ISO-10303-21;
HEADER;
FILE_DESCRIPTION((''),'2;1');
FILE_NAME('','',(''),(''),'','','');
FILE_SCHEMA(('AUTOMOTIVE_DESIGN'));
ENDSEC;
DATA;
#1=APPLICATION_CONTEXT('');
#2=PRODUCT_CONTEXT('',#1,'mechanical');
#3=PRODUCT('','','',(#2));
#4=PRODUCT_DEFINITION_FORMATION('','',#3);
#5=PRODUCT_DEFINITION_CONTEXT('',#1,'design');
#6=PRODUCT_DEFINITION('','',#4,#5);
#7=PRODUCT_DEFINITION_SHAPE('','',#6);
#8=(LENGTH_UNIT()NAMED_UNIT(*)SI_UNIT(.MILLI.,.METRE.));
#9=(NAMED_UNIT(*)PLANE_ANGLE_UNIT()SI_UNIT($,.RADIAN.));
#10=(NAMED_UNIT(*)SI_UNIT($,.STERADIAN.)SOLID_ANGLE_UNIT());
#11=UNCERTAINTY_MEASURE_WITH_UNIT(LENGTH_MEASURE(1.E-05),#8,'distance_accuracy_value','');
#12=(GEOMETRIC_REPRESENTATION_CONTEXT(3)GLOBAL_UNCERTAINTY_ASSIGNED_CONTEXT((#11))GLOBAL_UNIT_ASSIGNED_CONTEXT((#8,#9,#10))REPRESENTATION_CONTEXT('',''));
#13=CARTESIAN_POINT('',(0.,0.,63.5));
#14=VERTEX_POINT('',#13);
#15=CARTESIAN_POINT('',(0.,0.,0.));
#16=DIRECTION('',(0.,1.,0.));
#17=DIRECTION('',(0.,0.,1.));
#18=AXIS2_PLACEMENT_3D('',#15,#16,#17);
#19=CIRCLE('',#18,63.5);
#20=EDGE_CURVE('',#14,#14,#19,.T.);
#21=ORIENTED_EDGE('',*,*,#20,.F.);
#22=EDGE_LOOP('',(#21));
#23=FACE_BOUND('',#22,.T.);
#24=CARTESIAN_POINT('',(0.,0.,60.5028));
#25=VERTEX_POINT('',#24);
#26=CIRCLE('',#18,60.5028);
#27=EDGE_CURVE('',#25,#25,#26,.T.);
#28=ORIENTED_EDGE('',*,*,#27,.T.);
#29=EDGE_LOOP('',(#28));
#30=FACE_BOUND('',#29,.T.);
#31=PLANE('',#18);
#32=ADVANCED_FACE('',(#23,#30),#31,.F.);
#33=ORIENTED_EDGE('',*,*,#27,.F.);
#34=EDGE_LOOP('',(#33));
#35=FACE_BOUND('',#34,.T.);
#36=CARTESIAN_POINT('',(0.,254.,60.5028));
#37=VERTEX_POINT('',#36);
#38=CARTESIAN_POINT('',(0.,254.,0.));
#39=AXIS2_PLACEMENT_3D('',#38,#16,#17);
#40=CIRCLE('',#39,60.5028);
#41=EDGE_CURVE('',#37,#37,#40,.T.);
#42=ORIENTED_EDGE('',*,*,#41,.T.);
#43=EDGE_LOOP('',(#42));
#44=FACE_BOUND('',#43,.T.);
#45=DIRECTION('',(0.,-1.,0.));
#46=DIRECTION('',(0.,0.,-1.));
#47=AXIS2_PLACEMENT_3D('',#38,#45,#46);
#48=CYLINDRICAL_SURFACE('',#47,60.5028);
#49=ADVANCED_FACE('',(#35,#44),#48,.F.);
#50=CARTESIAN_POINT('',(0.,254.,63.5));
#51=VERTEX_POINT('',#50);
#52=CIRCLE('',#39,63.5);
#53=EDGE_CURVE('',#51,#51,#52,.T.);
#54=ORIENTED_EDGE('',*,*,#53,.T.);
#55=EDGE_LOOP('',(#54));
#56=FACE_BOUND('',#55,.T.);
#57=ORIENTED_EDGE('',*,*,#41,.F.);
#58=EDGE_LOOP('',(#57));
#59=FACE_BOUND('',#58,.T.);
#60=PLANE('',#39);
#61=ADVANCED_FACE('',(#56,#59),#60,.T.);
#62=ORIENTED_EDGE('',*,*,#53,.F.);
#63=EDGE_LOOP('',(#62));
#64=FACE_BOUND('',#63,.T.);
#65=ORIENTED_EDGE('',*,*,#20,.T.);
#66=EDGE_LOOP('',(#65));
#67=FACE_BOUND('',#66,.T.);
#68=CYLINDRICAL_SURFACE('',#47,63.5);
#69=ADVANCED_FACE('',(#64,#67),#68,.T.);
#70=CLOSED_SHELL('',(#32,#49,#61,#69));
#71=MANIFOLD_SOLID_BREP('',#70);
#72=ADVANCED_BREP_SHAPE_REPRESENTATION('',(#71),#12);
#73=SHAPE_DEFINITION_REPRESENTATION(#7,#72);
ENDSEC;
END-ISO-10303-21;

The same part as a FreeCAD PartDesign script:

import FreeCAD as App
import Part
import Sketcher
Q = App.Units.Quantity

doc = App.newDocument("Part")
body = doc.addObject("PartDesign::Body", "Body")

# Sketch on XZ plane
sketch1 = doc.addObject("Sketcher::SketchObject", "Sketch")
body.addObject(sketch1)
sketch1.AttachmentSupport = (doc.XZ_Plane, [""])
sketch1.MapMode = "FlatFace"
sketch1.addGeometry([
    Part.Circle(App.Vector(0, 0, 0), App.Vector(0, 0, 1), 64),
    Part.Circle(App.Vector(0, 0, 0), App.Vector(0, 0, 1), 61),
], False)
sketch1.addConstraint([
    Sketcher.Constraint("Coincident", 0, 3, -1, 1),
    Sketcher.Constraint("Coincident", 1, 3, -1, 1),
    Sketcher.Constraint("Diameter", 0, Q("5 in")),
    Sketcher.Constraint("Diameter", 1, Q("4.764 in")),
])
pad1 = doc.addObject("PartDesign::Pad", "Pad")
body.addObject(pad1)
pad1.Profile = sketch1
pad1.Length = Q("10 in")
pad1.Reversed = True

doc.recompute()
